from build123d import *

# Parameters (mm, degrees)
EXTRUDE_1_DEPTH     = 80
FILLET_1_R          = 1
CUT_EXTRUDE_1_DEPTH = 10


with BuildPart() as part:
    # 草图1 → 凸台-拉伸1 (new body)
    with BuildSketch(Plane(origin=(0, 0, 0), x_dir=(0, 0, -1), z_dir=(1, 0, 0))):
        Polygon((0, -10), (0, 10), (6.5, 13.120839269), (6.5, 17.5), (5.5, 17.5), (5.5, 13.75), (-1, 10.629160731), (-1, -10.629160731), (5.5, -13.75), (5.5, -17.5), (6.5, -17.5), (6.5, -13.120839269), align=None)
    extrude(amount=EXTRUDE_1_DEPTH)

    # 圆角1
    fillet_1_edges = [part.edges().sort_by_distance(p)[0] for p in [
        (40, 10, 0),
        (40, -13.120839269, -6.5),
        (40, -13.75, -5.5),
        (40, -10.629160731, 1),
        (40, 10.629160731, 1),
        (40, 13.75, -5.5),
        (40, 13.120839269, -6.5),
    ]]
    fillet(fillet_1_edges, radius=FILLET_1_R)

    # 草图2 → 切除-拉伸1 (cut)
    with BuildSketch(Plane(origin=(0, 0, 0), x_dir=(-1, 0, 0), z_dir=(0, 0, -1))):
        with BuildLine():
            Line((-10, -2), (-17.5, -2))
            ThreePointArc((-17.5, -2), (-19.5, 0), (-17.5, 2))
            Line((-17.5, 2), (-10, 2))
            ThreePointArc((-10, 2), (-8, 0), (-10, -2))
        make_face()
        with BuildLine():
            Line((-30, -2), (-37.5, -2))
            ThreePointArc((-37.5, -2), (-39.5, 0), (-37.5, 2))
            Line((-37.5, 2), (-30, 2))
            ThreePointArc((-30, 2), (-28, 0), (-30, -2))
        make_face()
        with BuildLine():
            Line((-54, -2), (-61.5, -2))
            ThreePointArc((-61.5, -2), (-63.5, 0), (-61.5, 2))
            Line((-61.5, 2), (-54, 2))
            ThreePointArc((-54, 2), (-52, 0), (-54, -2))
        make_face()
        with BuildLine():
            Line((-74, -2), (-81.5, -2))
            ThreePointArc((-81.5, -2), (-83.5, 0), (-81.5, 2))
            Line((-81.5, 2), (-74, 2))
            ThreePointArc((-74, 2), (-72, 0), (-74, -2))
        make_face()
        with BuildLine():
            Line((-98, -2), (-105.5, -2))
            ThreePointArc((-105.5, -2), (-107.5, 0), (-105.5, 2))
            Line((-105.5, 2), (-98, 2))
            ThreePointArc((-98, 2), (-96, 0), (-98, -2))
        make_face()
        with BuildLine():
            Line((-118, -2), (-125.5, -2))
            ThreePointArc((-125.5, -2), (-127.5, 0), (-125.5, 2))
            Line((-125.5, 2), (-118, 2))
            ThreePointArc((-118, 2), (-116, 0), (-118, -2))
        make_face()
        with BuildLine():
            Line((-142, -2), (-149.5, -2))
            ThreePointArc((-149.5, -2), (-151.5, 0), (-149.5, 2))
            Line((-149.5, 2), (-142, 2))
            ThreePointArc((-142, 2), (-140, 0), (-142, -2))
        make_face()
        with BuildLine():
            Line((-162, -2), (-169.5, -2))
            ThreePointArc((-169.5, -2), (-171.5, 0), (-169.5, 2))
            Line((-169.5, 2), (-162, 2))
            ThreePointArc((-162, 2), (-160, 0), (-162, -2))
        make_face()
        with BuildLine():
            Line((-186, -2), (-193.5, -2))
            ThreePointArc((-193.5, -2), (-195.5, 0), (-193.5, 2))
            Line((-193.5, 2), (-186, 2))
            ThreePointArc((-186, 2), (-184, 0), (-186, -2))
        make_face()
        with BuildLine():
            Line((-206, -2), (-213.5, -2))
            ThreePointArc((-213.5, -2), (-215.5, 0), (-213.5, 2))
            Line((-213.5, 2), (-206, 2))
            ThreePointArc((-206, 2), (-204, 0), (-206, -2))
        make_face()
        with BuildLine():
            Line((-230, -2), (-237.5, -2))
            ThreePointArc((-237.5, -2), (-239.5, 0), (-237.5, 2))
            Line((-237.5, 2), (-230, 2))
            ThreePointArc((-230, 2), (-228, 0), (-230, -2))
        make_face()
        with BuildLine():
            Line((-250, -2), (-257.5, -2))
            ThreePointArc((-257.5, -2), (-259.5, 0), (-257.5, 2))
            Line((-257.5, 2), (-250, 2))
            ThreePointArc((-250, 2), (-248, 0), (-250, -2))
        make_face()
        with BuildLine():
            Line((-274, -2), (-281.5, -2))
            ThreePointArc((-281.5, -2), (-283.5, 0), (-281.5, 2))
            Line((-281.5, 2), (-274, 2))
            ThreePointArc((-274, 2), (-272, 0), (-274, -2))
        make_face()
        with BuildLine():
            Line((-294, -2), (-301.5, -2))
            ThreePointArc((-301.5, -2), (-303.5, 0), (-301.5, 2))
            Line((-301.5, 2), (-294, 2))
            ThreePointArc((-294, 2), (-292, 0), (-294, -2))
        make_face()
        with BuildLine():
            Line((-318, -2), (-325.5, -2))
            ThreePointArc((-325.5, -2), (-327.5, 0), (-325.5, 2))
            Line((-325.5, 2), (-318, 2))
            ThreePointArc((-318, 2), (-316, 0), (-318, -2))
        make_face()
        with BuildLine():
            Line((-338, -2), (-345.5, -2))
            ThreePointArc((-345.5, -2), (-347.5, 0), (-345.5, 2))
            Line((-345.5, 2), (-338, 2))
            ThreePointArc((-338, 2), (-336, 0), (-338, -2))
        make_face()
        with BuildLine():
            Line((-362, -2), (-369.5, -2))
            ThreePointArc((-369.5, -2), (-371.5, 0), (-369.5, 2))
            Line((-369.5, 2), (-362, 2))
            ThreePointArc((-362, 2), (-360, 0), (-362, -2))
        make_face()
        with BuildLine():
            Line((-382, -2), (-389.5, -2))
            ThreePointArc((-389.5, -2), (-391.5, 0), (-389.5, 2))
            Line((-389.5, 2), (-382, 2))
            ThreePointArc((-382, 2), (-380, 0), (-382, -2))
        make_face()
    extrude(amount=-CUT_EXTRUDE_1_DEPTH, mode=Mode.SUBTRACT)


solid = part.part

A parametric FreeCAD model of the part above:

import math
import FreeCAD as App
import Part
import Sketcher

V = App.Vector
Q = App.Units.Quantity


def edges_at(feature, points):
    """Names of the edges that pass closest to the given points."""
    edges = feature.Shape.Edges
    near = lambda p: min(range(len(edges)), key=lambda i: edges[i].distToShape(Part.Vertex(*p))[0])
    return sorted({f"Edge{near(p) + 1}" for p in points})


def add_polygon(sketch, points):
    """Adds a closed chain of lines whose ends are joined by coincident constraints."""
    first, n = sketch.GeometryCount, len(points)
    for a, b in zip(points, points[1:] + points[:1]):
        sketch.addGeometry(Part.LineSegment(App.Vector(*a, 0), App.Vector(*b, 0)), False)
    for i in range(n):
        sketch.addConstraint(Sketcher.Constraint("Coincident", first + i, 2, first + (i + 1) % n, 1))

doc = App.newDocument("Part")
params = doc.addObject("Spreadsheet::Sheet", "Params")
for row, (alias, value) in enumerate([
    ("sketch1_width", "20 mm"),
    ("sketch1_height", "1 mm"),
    ("sketch1_width2", "3.75 mm"),
    ("pad1_length", "80 mm"),
    ("fillet_radius", "1 mm"),
    ("sketch2_radius", "2 mm"),
    ("sketch2_width", "7.5 mm"),
    ("pocket1_length", "10 mm"),
], start=1):
    params.set(f"A{row}", alias)
    params.set(f"B{row}", "=" + value)
    params.setAlias(f"B{row}", alias)

body = doc.addObject("PartDesign::Body", "Body")

# Sketch on YZ plane
sketch1 = body.newObject("Sketcher::SketchObject", "Sketch")
sketch1.AttachmentSupport = (doc.getObject("YZ_Plane"), [""])
sketch1.MapMode = "FlatFace"
add_polygon(sketch1, [(-10, 0), (10, 0), (13.1, -6.5), (17.5, -6.5), (17.5, -5.5), (13.8, -5.5), (10.6, 1), (-10.6, 1), (-13.8, -5.5), (-17.5, -5.5), (-17.5, -6.5), (-13.1, -6.5)])  # lines 0-11
sketch1.addConstraint([
    Sketcher.Constraint("Horizontal", 0),
    Sketcher.Constraint("Horizontal", 2),
    Sketcher.Constraint("Vertical", 3),
    Sketcher.Constraint("Horizontal", 4),
    Sketcher.Constraint("Horizontal", 6),
    Sketcher.Constraint("Horizontal", 8),
    Sketcher.Constraint("Vertical", 9),
    Sketcher.Constraint("Horizontal", 10),
    Sketcher.Constraint("Symmetric", 0, 2, 11, 2, -1, 1),
    Sketcher.Constraint("Symmetric", 4, 2, 7, 2, -2),
    Sketcher.Constraint("Symmetric", 2, 2, 9, 2, -2),
    Sketcher.Constraint("Parallel", 1, 5),
    Sketcher.Constraint("Parallel", 7, 11),
    Sketcher.Constraint("Equal", 2, 10),
    Sketcher.Constraint("Equal", 1, 5),
    Sketcher.Constraint("DistanceX", 0, 1, 0, 2, Q("20 mm")),
    Sketcher.Constraint("DistanceY", 3, 1, 3, 2, Q("1 mm")),
    Sketcher.Constraint("DistanceX", 4, 2, 4, 1, Q("3.75 mm")),
    Sketcher.Constraint("DistanceY", 1, 2, -1, 1, Q("6.5 mm")),
    Sketcher.Constraint("DistanceX", -1, 1, 2, 2, Q("17.5 mm")),
    Sketcher.Constraint("DistanceX", 2, 1, 2, 2, Q("4.379161 mm")),
])
sketch1.setExpression("Constraints[27]", "Params.sketch1_width")
sketch1.setExpression("Constraints[28]", "Params.sketch1_height")
sketch1.setExpression("Constraints[29]", "Params.sketch1_width2")
pad1 = body.newObject("PartDesign::Pad", "Pad")
pad1.Profile = sketch1
pad1.setExpression("Length", "Params.pad1_length")
doc.recompute()

fillet = body.newObject("PartDesign::Fillet", "Fillet")
fillet.Base = (pad1, edges_at(pad1, [
    (40, 10, 0),
    (40, -13.121, -6.5),
    (40, -13.75, -5.5),
    (40, -10.629, 1),
    (40, 10.629, 1),
    (40, 13.75, -5.5),
    (40, 13.121, -6.5),
]))
fillet.setExpression("Radius", "Params.fillet_radius")

# Sketch on XY plane
sketch2 = body.newObject("Sketcher::SketchObject", "Sketch001")
sketch2.AttachmentSupport = (doc.getObject("XY_Plane"), [""])
sketch2.MapMode = "FlatFace"
sketch2.addGeometry([
    Part.LineSegment(V(17.5, -2, 0), V(10, -2, 0)),  # 0
    Part.ArcOfCircle(Part.Circle(V(10, 0, 0), V(0, 0, 1), 2), math.radians(90), math.radians(270)),  # 1
    Part.LineSegment(V(10, 2, 0), V(17.5, 2, 0)),  # 2
    Part.ArcOfCircle(Part.Circle(V(17.5, 0, 0), V(0, 0, 1), 2), math.radians(-90), math.radians(90)),  # 3
    Part.LineSegment(V(37.5, -2, 0), V(30, -2, 0)),  # 4
    Part.ArcOfCircle(Part.Circle(V(30, 0, 0), V(0, 0, 1), 2), math.radians(90), math.radians(270)),  # 5
    Part.LineSegment(V(30, 2, 0), V(37.5, 2, 0)),  # 6
    Part.ArcOfCircle(Part.Circle(V(37.5, 0, 0), V(0, 0, 1), 2), math.radians(-90), math.radians(90)),  # 7
    Part.LineSegment(V(61.5, -2, 0), V(54, -2, 0)),  # 8
    Part.ArcOfCircle(Part.Circle(V(54, 0, 0), V(0, 0, 1), 2), math.radians(90), math.radians(270)),  # 9
    Part.LineSegment(V(54, 2, 0), V(61.5, 2, 0)),  # 10
    Part.ArcOfCircle(Part.Circle(V(61.5, 0, 0), V(0, 0, 1), 2), math.radians(-90), math.radians(90)),  # 11
    Part.LineSegment(V(81.5, -2, 0), V(74, -2, 0)),  # 12
    Part.ArcOfCircle(Part.Circle(V(74, 0, 0), V(0, 0, 1), 2), math.radians(90), math.radians(270)),  # 13
    Part.LineSegment(V(74, 2, 0), V(81.5, 2, 0)),  # 14
    Part.ArcOfCircle(Part.Circle(V(81.5, 0, 0), V(0, 0, 1), 2), math.radians(-90), math.radians(90)),  # 15
    Part.LineSegment(V(105.5, -2, 0), V(98, -2, 0)),  # 16
    Part.ArcOfCircle(Part.Circle(V(98, 0, 0), V(0, 0, 1), 2), math.radians(90), math.radians(270)),  # 17
    Part.LineSegment(V(98, 2, 0), V(105.5, 2, 0)),  # 18
    Part.ArcOfCircle(Part.Circle(V(105.5, 0, 0), V(0, 0, 1), 2), math.radians(-90), math.radians(90)),  # 19
    Part.LineSegment(V(125.5, -2, 0), V(118, -2, 0)),  # 20
    Part.ArcOfCircle(Part.Circle(V(118, 0, 0), V(0, 0, 1), 2), math.radians(90), math.radians(270)),  # 21
    Part.LineSegment(V(118, 2, 0), V(125.5, 2, 0)),  # 22
    Part.ArcOfCircle(Part.Circle(V(125.5, 0, 0), V(0, 0, 1), 2), math.radians(-90), math.radians(90)),  # 23
    Part.LineSegment(V(149.5, -2, 0), V(142, -2, 0)),  # 24
    Part.ArcOfCircle(Part.Circle(V(142, 0, 0), V(0, 0, 1), 2), math.radians(90), math.radians(270)),  # 25
    Part.LineSegment(V(142, 2, 0), V(149.5, 2, 0)),  # 26
    Part.ArcOfCircle(Part.Circle(V(149.5, 0, 0), V(0, 0, 1), 2), math.radians(-90), math.radians(90)),  # 27
    Part.LineSegment(V(169.5, -2, 0), V(162, -2, 0)),  # 28
    Part.ArcOfCircle(Part.Circle(V(162, 0, 0), V(0, 0, 1), 2), math.radians(90), math.radians(270)),  # 29
    Part.LineSegment(V(162, 2, 0), V(169.5, 2, 0)),  # 30
    Part.ArcOfCircle(Part.Circle(V(169.5, 0, 0), V(0, 0, 1), 2), math.radians(-90), math.radians(90)),  # 31
    Part.LineSegment(V(193.5, -2, 0), V(186, -2, 0)),  # 32
    Part.ArcOfCircle(Part.Circle(V(186, 0, 0), V(0, 0, 1), 2), math.radians(90), math.radians(270)),  # 33
    Part.LineSegment(V(186, 2, 0), V(193.5, 2, 0)),  # 34
    Part.ArcOfCircle(Part.Circle(V(193.5, 0, 0), V(0, 0, 1), 2), math.radians(-90), math.radians(90)),  # 35
    Part.LineSegment(V(213.5, -2, 0), V(206, -2, 0)),  # 36
    Part.ArcOfCircle(Part.Circle(V(206, 0, 0), V(0, 0, 1), 2), math.radians(90), math.radians(270)),  # 37
    Part.LineSegment(V(206, 2, 0), V(213.5, 2, 0)),  # 38
    Part.ArcOfCircle(Part.Circle(V(213.5, 0, 0), V(0, 0, 1), 2), math.radians(-90), math.radians(90)),  # 39
    Part.LineSegment(V(237.5, -2, 0), V(230, -2, 0)),  # 40
    Part.ArcOfCircle(Part.Circle(V(230, 0, 0), V(0, 0, 1), 2), math.radians(90), math.radians(270)),  # 41
    Part.LineSegment(V(230, 2, 0), V(237.5, 2, 0)),  # 42
    Part.ArcOfCircle(Part.Circle(V(237.5, 0, 0), V(0, 0, 1), 2), math.radians(-90), math.radians(90)),  # 43
    Part.LineSegment(V(257.5, -2, 0), V(250, -2, 0)),  # 44
    Part.ArcOfCircle(Part.Circle(V(250, 0, 0), V(0, 0, 1), 2), math.radians(90), math.radians(270)),  # 45
    Part.LineSegment(V(250, 2, 0), V(257.5, 2, 0)),  # 46
    Part.ArcOfCircle(Part.Circle(V(257.5, 0, 0), V(0, 0, 1), 2), math.radians(-90), math.radians(90)),  # 47
    Part.LineSegment(V(281.5, -2, 0), V(274, -2, 0)),  # 48
    Part.ArcOfCircle(Part.Circle(V(274, 0, 0), V(0, 0, 1), 2), math.radians(90), math.radians(270)),  # 49
    Part.LineSegment(V(274, 2, 0), V(281.5, 2, 0)),  # 50
    Part.ArcOfCircle(Part.Circle(V(281.5, 0, 0), V(0, 0, 1), 2), math.radians(-90), math.radians(90)),  # 51
    Part.LineSegment(V(301.5, -2, 0), V(294, -2, 0)),  # 52
    Part.ArcOfCircle(Part.Circle(V(294, 0, 0), V(0, 0, 1), 2), math.radians(90), math.radians(270)),  # 53
    Part.LineSegment(V(294, 2, 0), V(301.5, 2, 0)),  # 54
    Part.ArcOfCircle(Part.Circle(V(301.5, 0, 0), V(0, 0, 1), 2), math.radians(-90), math.radians(90)),  # 55
    Part.LineSegment(V(325.5, -2, 0), V(318, -2, 0)),  # 56
    Part.ArcOfCircle(Part.Circle(V(318, 0, 0), V(0, 0, 1), 2), math.radians(90), math.radians(270)),  # 57
    Part.LineSegment(V(318, 2, 0), V(325.5, 2, 0)),  # 58
    Part.ArcOfCircle(Part.Circle(V(325.5, 0, 0), V(0, 0, 1), 2), math.radians(-90), math.radians(90)),  # 59
    Part.LineSegment(V(345.5, -2, 0), V(338, -2, 0)),  # 60
    Part.ArcOfCircle(Part.Circle(V(338, 0, 0), V(0, 0, 1), 2), math.radians(90), math.radians(270)),  # 61
    Part.LineSegment(V(338, 2, 0), V(345.5, 2, 0)),  # 62
    Part.ArcOfCircle(Part.Circle(V(345.5, 0, 0), V(0, 0, 1), 2), math.radians(-90), math.radians(90)),  # 63
    Part.LineSegment(V(369.5, -2, 0), V(362, -2, 0)),  # 64
    Part.ArcOfCircle(Part.Circle(V(362, 0, 0), V(0, 0, 1), 2), math.radians(90), math.radians(270)),  # 65
    Part.LineSegment(V(362, 2, 0), V(369.5, 2, 0)),  # 66
    Part.ArcOfCircle(Part.Circle(V(369.5, 0, 0), V(0, 0, 1), 2), math.radians(-90), math.radians(90)),  # 67
    Part.LineSegment(V(389.5, -2, 0), V(382, -2, 0)),  # 68
    Part.ArcOfCircle(Part.Circle(V(382, 0, 0), V(0, 0, 1), 2), math.radians(90), math.radians(270)),  # 69
    Part.LineSegment(V(382, 2, 0), V(389.5, 2, 0)),  # 70
    Part.ArcOfCircle(Part.Circle(V(389.5, 0, 0), V(0, 0, 1), 2), math.radians(-90), math.radians(90)),  # 71
], False)
sketch2.addConstraint([
    Sketcher.Constraint("Tangent", 0, 2, 1, 2),
    Sketcher.Constraint("Tangent", 1, 1, 2, 1),
    Sketcher.Constraint("Tangent", 2, 2, 3, 2),
    Sketcher.Constraint("Tangent", 3, 1, 0, 1),
    Sketcher.Constraint("Tangent", 4, 2, 5, 2),
    Sketcher.Constraint("Tangent", 5, 1, 6, 1),
    Sketcher.Constraint("Tangent", 6, 2, 7, 2),
    Sketcher.Constraint("Tangent", 7, 1, 4, 1),
    Sketcher.Constraint("Tangent", 8, 2, 9, 2),
    Sketcher.Constraint("Tangent", 9, 1, 10, 1),
    Sketcher.Constraint("Tangent", 10, 2, 11, 2),
    Sketcher.Constraint("Tangent", 11, 1, 8, 1),
    Sketcher.Constraint("Tangent", 12, 2, 13, 2),
    Sketcher.Constraint("Tangent", 13, 1, 14, 1),
    Sketcher.Constraint("Tangent", 14, 2, 15, 2),
    Sketcher.Constraint("Tangent", 15, 1, 12, 1),
    Sketcher.Constraint("Tangent", 16, 2, 17, 2),
    Sketcher.Constraint("Tangent", 17, 1, 18, 1),
    Sketcher.Constraint("Tangent", 18, 2, 19, 2),
    Sketcher.Constraint("Tangent", 19, 1, 16, 1),
    Sketcher.Constraint("Tangent", 20, 2, 21, 2),
    Sketcher.Constraint("Tangent", 21, 1, 22, 1),
    Sketcher.Constraint("Tangent", 22, 2, 23, 2),
    Sketcher.Constraint("Tangent", 23, 1, 20, 1),
    Sketcher.Constraint("Tangent", 24, 2, 25, 2),
    Sketcher.Constraint("Tangent", 25, 1, 26, 1),
    Sketcher.Constraint("Tangent", 26, 2, 27, 2),
    Sketcher.Constraint("Tangent", 27, 1, 24, 1),
    Sketcher.Constraint("Tangent", 28, 2, 29, 2),
    Sketcher.Constraint("Tangent", 29, 1, 30, 1),
    Sketcher.Constraint("Tangent", 30, 2, 31, 2),
    Sketcher.Constraint("Tangent", 31, 1, 28, 1),
    Sketcher.Constraint("Tangent", 32, 2, 33, 2),
    Sketcher.Constraint("Tangent", 33, 1, 34, 1),
    Sketcher.Constraint("Tangent", 34, 2, 35, 2),
    Sketcher.Constraint("Tangent", 35, 1, 32, 1),
    Sketcher.Constraint("Tangent", 36, 2, 37, 2),
    Sketcher.Constraint("Tangent", 37, 1, 38, 1),
    Sketcher.Constraint("Tangent", 38, 2, 39, 2),
    Sketcher.Constraint("Tangent", 39, 1, 36, 1),
    Sketcher.Constraint("Tangent", 40, 2, 41, 2),
    Sketcher.Constraint("Tangent", 41, 1, 42, 1),
    Sketcher.Constraint("Tangent", 42, 2, 43, 2),
    Sketcher.Constraint("Tangent", 43, 1, 40, 1),
    Sketcher.Constraint("Tangent", 44, 2, 45, 2),
    Sketcher.Constraint("Tangent", 45, 1, 46, 1),
    Sketcher.Constraint("Tangent", 46, 2, 47, 2),
    Sketcher.Constraint("Tangent", 47, 1, 44, 1),
    Sketcher.Constraint("Tangent", 48, 2, 49, 2),
    Sketcher.Constraint("Tangent", 49, 1, 50, 1),
    Sketcher.Constraint("Tangent", 50, 2, 51, 2),
    Sketcher.Constraint("Tangent", 51, 1, 48, 1),
    Sketcher.Constraint("Tangent", 52, 2, 53, 2),
    Sketcher.Constraint("Tangent", 53, 1, 54, 1),
    Sketcher.Constraint("Tangent", 54, 2, 55, 2),
    Sketcher.Constraint("Tangent", 55, 1, 52, 1),
    Sketcher.Constraint("Tangent", 56, 2, 57, 2),
    Sketcher.Constraint("Tangent", 57, 1, 58, 1),
    Sketcher.Constraint("Tangent", 58, 2, 59, 2),
    Sketcher.Constraint("Tangent", 59, 1, 56, 1),
    Sketcher.Constraint("Tangent", 60, 2, 61, 2),
    Sketcher.Constraint("Tangent", 61, 1, 62, 1),
    Sketcher.Constraint("Tangent", 62, 2, 63, 2),
    Sketcher.Constraint("Tangent", 63, 1, 60, 1),
    Sketcher.Constraint("Tangent", 64, 2, 65, 2),
    Sketcher.Constraint("Tangent", 65, 1, 66, 1),
    Sketcher.Constraint("Tangent", 66, 2, 67, 2),
    Sketcher.Constraint("Tangent", 67, 1, 64, 1),
    Sketcher.Constraint("Tangent", 68, 2, 69, 2),
    Sketcher.Constraint("Tangent", 69, 1, 70, 1),
    Sketcher.Constraint("Tangent", 70, 2, 71, 2),
    Sketcher.Constraint("Tangent", 71, 1, 68, 1),
    Sketcher.Constraint("Horizontal", 0),
    Sketcher.Constraint("Horizontal", 2),
    Sketcher.Constraint("Horizontal", 4),
    Sketcher.Constraint("Horizontal", 6),
    Sketcher.Constraint("Horizontal", 8),
    Sketcher.Constraint("Horizontal", 10),
    Sketcher.Constraint("Horizontal", 12),
    Sketcher.Constraint("Horizontal", 14),
    Sketcher.Constraint("Horizontal", 16),
    Sketcher.Constraint("Horizontal", 18),
    Sketcher.Constraint("Horizontal", 20),
    Sketcher.Constraint("Horizontal", 22),
    Sketcher.Constraint("Horizontal", 24),
    Sketcher.Constraint("Horizontal", 26),
    Sketcher.Constraint("Horizontal", 28),
    Sketcher.Constraint("Horizontal", 30),
    Sketcher.Constraint("Horizontal", 32),
    Sketcher.Constraint("Horizontal", 34),
    Sketcher.Constraint("Horizontal", 36),
    Sketcher.Constraint("Horizontal", 38),
    Sketcher.Constraint("Horizontal", 40),
    Sketcher.Constraint("Horizontal", 42),
    Sketcher.Constraint("Horizontal", 44),
    Sketcher.Constraint("Horizontal", 46),
    Sketcher.Constraint("Horizontal", 48),
    Sketcher.Constraint("Horizontal", 50),
    Sketcher.Constraint("Horizontal", 52),
    Sketcher.Constraint("Horizontal", 54),
    Sketcher.Constraint("Horizontal", 56),
    Sketcher.Constraint("Horizontal", 58),
    Sketcher.Constraint("Horizontal", 60),
    Sketcher.Constraint("Horizontal", 62),
    Sketcher.Constraint("Horizontal", 64),
    Sketcher.Constraint("Horizontal", 66),
    Sketcher.Constraint("Horizontal", 68),
    Sketcher.Constraint("Horizontal", 70),
    Sketcher.Constraint("Equal", 3, 5),
    Sketcher.Constraint("Equal", 7, 9),
    Sketcher.Constraint("Equal", 11, 13),
    Sketcher.Constraint("Equal", 15, 17),
    Sketcher.Constraint("Equal", 19, 21),
    Sketcher.Constraint("Equal", 23, 25),
    Sketcher.Constraint("Equal", 27, 29),
    Sketcher.Constraint("Equal", 31, 33),
    Sketcher.Constraint("Equal", 35, 37),
    Sketcher.Constraint("Equal", 39, 41),
    Sketcher.Constraint("Equal", 43, 45),
    Sketcher.Constraint("Equal", 47, 49),
    Sketcher.Constraint("Equal", 51, 53),
    Sketcher.Constraint("Equal", 55, 57),
    Sketcher.Constraint("Equal", 59, 61),
    Sketcher.Constraint("Equal", 63, 65),
    Sketcher.Constraint("Equal", 67, 69),
    Sketcher.Constraint("PointOnObject", 1, 3, -1),
    Sketcher.Constraint("PointOnObject", 5, 3, -1),
    Sketcher.Constraint("PointOnObject", 9, 3, -1),
    Sketcher.Constraint("PointOnObject", 13, 3, -1),
    Sketcher.Constraint("PointOnObject", 17, 3, -1),
    Sketcher.Constraint("PointOnObject", 21, 3, -1),
    Sketcher.Constraint("PointOnObject", 25, 3, -1),
    Sketcher.Constraint("PointOnObject", 29, 3, -1),
    Sketcher.Constraint("PointOnObject", 33, 3, -1),
    Sketcher.Constraint("PointOnObject", 37, 3, -1),
    Sketcher.Constraint("PointOnObject", 41, 3, -1),
    Sketcher.Constraint("PointOnObject", 45, 3, -1),
    Sketcher.Constraint("PointOnObject", 49, 3, -1),
    Sketcher.Constraint("PointOnObject", 53, 3, -1),
    Sketcher.Constraint("PointOnObject", 57, 3, -1),
    Sketcher.Constraint("PointOnObject", 61, 3, -1),
    Sketcher.Constraint("PointOnObject", 65, 3, -1),
    Sketcher.Constraint("PointOnObject", 69, 3, -1),
    Sketcher.Constraint("Equal", 2, 4),
    Sketcher.Constraint("Equal", 6, 8),
    Sketcher.Constraint("Equal", 10, 12),
    Sketcher.Constraint("Equal", 14, 16),
    Sketcher.Constraint("Equal", 18, 20),
    Sketcher.Constraint("Equal", 22, 24),
    Sketcher.Constraint("Equal", 26, 28),
    Sketcher.Constraint("Equal", 30, 32),
    Sketcher.Constraint("Equal", 34, 36),
    Sketcher.Constraint("Equal", 38, 40),
    Sketcher.Constraint("Equal", 42, 44),
    Sketcher.Constraint("Equal", 46, 48),
    Sketcher.Constraint("Equal", 50, 52),
    Sketcher.Constraint("Equal", 54, 56),
    Sketcher.Constraint("Equal", 58, 60),
    Sketcher.Constraint("Equal", 62, 64),
    Sketcher.Constraint("Equal", 66, 68),
    Sketcher.Constraint("Radius", 1, Q("2 mm")),
    Sketcher.Constraint("DistanceX", 0, 2, 0, 1, Q("7.5 mm")),
    Sketcher.Constraint("DistanceX", -1, 1, 1, 3, Q("10 mm")),
    Sketcher.Constraint("DistanceX", -1, 1, 5, 3, Q("30 mm")),
    Sketcher.Constraint("DistanceX", -1, 1, 9, 3, Q("54 mm")),
    Sketcher.Constraint("DistanceX", -1, 1, 13, 3, Q("74 mm")),
    Sketcher.Constraint("DistanceX", -1, 1, 17, 3, Q("98 mm")),
    Sketcher.Constraint("DistanceX", -1, 1, 21, 3, Q("118 mm")),
    Sketcher.Constraint("DistanceX", -1, 1, 25, 3, Q("142 mm")),
    Sketcher.Constraint("DistanceX", -1, 1, 29, 3, Q("162 mm")),
    Sketcher.Constraint("DistanceX", -1, 1, 33, 3, Q("186 mm")),
    Sketcher.Constraint("DistanceX", -1, 1, 37, 3, Q("206 mm")),
    Sketcher.Constraint("DistanceX", -1, 1, 41, 3, Q("230 mm")),
    Sketcher.Constraint("DistanceX", -1, 1, 45, 3, Q("250 mm")),
    Sketcher.Constraint("DistanceX", -1, 1, 49, 3, Q("274 mm")),
    Sketcher.Constraint("DistanceX", -1, 1, 53, 3, Q("294 mm")),
    Sketcher.Constraint("DistanceX", -1, 1, 57, 3, Q("318 mm")),
    Sketcher.Constraint("DistanceX", -1, 1, 61, 3, Q("338 mm")),
    Sketcher.Constraint("DistanceX", -1, 1, 65, 3, Q("362 mm")),
    Sketcher.Constraint("DistanceX", -1, 1, 69, 3, Q("382 mm")),
])
sketch2.setExpression("Constraints[160]", "Params.sketch2_radius")
sketch2.setExpression("Constraints[161]", "Params.sketch2_width")
pocket1 = body.newObject("PartDesign::Pocket", "Pocket")
pocket1.Profile = sketch2
pocket1.setExpression("Length", "Params.pocket1_length")
pocket1.Reversed = True

doc.recompute()
